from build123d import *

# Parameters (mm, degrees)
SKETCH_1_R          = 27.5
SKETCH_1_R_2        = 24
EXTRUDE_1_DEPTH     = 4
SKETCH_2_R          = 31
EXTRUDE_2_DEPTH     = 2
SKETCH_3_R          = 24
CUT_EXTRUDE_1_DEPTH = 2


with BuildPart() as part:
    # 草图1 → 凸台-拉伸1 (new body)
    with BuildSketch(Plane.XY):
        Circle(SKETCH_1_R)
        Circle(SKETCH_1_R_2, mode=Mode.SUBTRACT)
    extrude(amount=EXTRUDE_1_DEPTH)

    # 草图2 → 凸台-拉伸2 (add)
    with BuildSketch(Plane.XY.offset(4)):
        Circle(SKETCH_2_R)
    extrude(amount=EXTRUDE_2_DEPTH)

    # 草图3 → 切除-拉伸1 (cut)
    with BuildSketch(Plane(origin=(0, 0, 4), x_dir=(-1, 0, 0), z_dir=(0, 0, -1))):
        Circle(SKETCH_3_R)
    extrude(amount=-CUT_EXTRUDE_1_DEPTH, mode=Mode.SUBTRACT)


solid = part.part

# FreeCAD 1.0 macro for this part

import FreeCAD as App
import Part
import Sketcher
Q = App.Units.Quantity

doc = App.newDocument("Part")
body = doc.addObject("PartDesign::Body", "Body")

# Sketch on XY plane
sketch1 = doc.addObject("Sketcher::SketchObject", "Sketch")
body.addObject(sketch1)
sketch1.AttachmentSupport = (doc.XY_Plane, [""])
sketch1.MapMode = "FlatFace"
sketch1.addGeometry([
    Part.Circle(App.Vector(0, 0, 0), App.Vector(0, 0, 1), 28),
    Part.Circle(App.Vector(0, 0, 0), App.Vector(0, 0, 1), 24),
], False)
sketch1.addConstraint([
    Sketcher.Constraint("Coincident", 0, 3, -1, 1),
    Sketcher.Constraint("Coincident", 1, 3, -1, 1),
    Sketcher.Constraint("Diameter", 0, Q("55 mm")),
    Sketcher.Constraint("Diameter", 1, Q("48 mm")),
])
pad1 = doc.addObject("PartDesign::Pad", "Pad")
body.addObject(pad1)
pad1.Profile = sketch1
pad1.Length = 4

# Sketch on XY plane
sketch2 = doc.addObject("Sketcher::SketchObject", "Sketch001")
body.addObject(sketch2)
sketch2.AttachmentSupport = (doc.XY_Plane, [""])
sketch2.MapMode = "FlatFace"
sketch2.AttachmentOffset = App.Placement(App.Vector(0, 0, 4), App.Rotation())
sketch2.addGeometry(Part.Circle(App.Vector(0, 0, 0), App.Vector(0, 0, 1), 31), False)
sketch2.addConstraint([
    Sketcher.Constraint("Coincident", 0, 3, -1, 1),
    Sketcher.Constraint("Diameter", 0, Q("62 mm")),
])
pad2 = doc.addObject("PartDesign::Pad", "Pad001")
body.addObject(pad2)
pad2.Profile = sketch2
pad2.Length = 2

# Sketch on XY plane
sketch3 = doc.addObject("Sketcher::SketchObject", "Sketch002")
body.addObject(sketch3)
sketch3.AttachmentSupport = (doc.XY_Plane, [""])
sketch3.MapMode = "FlatFace"
sketch3.AttachmentOffset = App.Placement(App.Vector(0, 0, 4), App.Rotation())
sketch3.addGeometry(Part.Circle(App.Vector(0, 0, 0), App.Vector(0, 0, 1), 24), False)
sketch3.addConstraint([
    Sketcher.Constraint("Coincident", 0, 3, -1, 1),
    Sketcher.Constraint("Diameter", 0, Q("48 mm")),
])
pocket1 = doc.addObject("PartDesign::Pocket", "Pocket")
body.addObject(pocket1)
pocket1.Profile = sketch3
pocket1.Length = 2
pocket1.Reversed = True

doc.recompute()
